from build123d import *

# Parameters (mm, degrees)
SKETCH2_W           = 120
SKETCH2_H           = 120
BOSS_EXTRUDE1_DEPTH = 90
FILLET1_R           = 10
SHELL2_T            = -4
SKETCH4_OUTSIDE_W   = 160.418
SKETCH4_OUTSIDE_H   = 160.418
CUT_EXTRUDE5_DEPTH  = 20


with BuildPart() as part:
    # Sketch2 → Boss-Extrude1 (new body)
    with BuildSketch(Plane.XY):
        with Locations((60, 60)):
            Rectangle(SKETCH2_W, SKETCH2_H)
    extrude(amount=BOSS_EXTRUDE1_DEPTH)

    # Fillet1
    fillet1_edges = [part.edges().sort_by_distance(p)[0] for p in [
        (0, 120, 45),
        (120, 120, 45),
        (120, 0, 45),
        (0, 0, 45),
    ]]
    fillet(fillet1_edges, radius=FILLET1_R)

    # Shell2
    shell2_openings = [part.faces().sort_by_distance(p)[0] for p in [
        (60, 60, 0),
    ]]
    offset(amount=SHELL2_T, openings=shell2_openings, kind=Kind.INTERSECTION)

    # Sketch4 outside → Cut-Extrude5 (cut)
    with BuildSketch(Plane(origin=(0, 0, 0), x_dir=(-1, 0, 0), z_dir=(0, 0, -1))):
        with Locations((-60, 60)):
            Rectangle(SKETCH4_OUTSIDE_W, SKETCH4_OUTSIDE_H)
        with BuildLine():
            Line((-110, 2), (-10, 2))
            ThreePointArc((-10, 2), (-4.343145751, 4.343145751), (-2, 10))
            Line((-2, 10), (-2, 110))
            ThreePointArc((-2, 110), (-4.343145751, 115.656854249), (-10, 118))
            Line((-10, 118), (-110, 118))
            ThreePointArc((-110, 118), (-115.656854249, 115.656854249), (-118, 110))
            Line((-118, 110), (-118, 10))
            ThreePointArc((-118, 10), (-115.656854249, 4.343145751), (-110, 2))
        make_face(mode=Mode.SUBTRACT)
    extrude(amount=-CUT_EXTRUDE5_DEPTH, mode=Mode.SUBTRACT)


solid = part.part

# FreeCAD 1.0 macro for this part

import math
import FreeCAD as App
import Part
import Sketcher
from FreeCAD import Vector
Q = App.Units.Quantity


def edges_at(feature, points):
    """Names of the edges that pass closest to the given points."""
    edges = feature.Shape.Edges
    near = lambda p: min(range(len(edges)), key=lambda i: edges[i].distToShape(Part.Vertex(*p))[0])
    return sorted({f"Edge{near(p) + 1}" for p in points})


def faces_at(feature, points):
    """Names of the faces that lie closest to the given points."""
    faces = feature.Shape.Faces
    near = lambda p: min(range(len(faces)), key=lambda i: faces[i].distToShape(Part.Vertex(*p))[0])
    return sorted({f"Face{near(p) + 1}" for p in points})

doc = App.newDocument("Part")
body = doc.addObject("PartDesign::Body", "Body")

sketch1 = body.newObject("Sketcher::SketchObject", "Sketch")
sketch1.AttachmentSupport = (doc.getObject("XY_Plane"), [""])
sketch1.MapMode = "FlatFace"
sketch1.addGeometry([
    Part.LineSegment(Vector(0, 120, 0), Vector(0, 0, 0)),
    Part.LineSegment(Vector(0, 0, 0), Vector(120, 0, 0)),
    Part.LineSegment(Vector(120, 0, 0), Vector(120, 120, 0)),
    Part.LineSegment(Vector(120, 120, 0), Vector(0, 120, 0)),
], False)
sketch1.addConstraint([
    Sketcher.Constraint("Coincident", 0, 2, 1, 1),
    Sketcher.Constraint("Coincident", 1, 2, 2, 1),
    Sketcher.Constraint("Coincident", 2, 2, 3, 1),
    Sketcher.Constraint("Coincident", 3, 2, 0, 1),
    Sketcher.Constraint("Vertical", 0),
    Sketcher.Constraint("Horizontal", 1),
    Sketcher.Constraint("Vertical", 2),
    Sketcher.Constraint("Horizontal", 3),
    Sketcher.Constraint("Coincident", 0, 2, -1, 1),
    Sketcher.Constraint("Equal", 3, 0),
    Sketcher.Constraint("DistanceX", 1, 1, 1, 2, Q("120 mm")),
])
pad1 = body.newObject("PartDesign::Pad", "Pad")
pad1.Profile = sketch1
pad1.Length = 90
doc.recompute()

fillet = body.newObject("PartDesign::Fillet", "Fillet")
fillet.Base = (pad1, edges_at(pad1, [
    (0, 120, 45),
    (120, 120, 45),
    (120, 0, 45),
    (0, 0, 45),
]))
fillet.Radius = 10
doc.recompute()

thickness = body.newObject("PartDesign::Thickness", "Thickness")
thickness.Base = (fillet, faces_at(fillet, [(60, 60, 0)]))
thickness.Value = 4
thickness.Reversed = True
thickness.Join = "Intersection"

sketch2 = body.newObject("Sketcher::SketchObject", "Sketch001")
sketch2.AttachmentSupport = (doc.getObject("XY_Plane"), [""])
sketch2.MapMode = "FlatFace"
sketch2.addGeometry([
    Part.LineSegment(Vector(140, 140, 0), Vector(140, -20, 0)),
    Part.LineSegment(Vector(140, -20, 0), Vector(-20, -20, 0)),
    Part.LineSegment(Vector(-20, -20, 0), Vector(-20, 140, 0)),
    Part.LineSegment(Vector(-20, 140, 0), Vector(140, 140, 0)),
    Part.LineSegment(Vector(10, 2, 0), Vector(110, 2, 0)),
    Part.ArcOfCircle(Part.Circle(Vector(110, 10, 0), Vector(0, 0, 1), 8), math.radians(-90), math.radians(0)),
    Part.LineSegment(Vector(118, 10, 0), Vector(118, 110, 0)),
    Part.ArcOfCircle(Part.Circle(Vector(110, 110, 0), Vector(0, 0, 1), 8), math.radians(0), math.radians(90)),
    Part.LineSegment(Vector(110, 118, 0), Vector(10, 118, 0)),
    Part.ArcOfCircle(Part.Circle(Vector(10, 110, 0), Vector(0, 0, 1), 8), math.radians(90), math.radians(180)),
    Part.LineSegment(Vector(2, 110, 0), Vector(2, 10, 0)),
    Part.ArcOfCircle(Part.Circle(Vector(10, 10, 0), Vector(0, 0, 1), 8), math.radians(-180), math.radians(-90)),
], False)
sketch2.addConstraint([
    Sketcher.Constraint("Coincident", 0, 2, 1, 1),
    Sketcher.Constraint("Coincident", 1, 2, 2, 1),
    Sketcher.Constraint("Coincident", 2, 2, 3, 1),
    Sketcher.Constraint("Coincident", 3, 2, 0, 1),
    Sketcher.Constraint("Tangent", 4, 2, 5, 1),
    Sketcher.Constraint("Tangent", 5, 2, 6, 1),
    Sketcher.Constraint("Tangent", 6, 2, 7, 1),
    Sketcher.Constraint("Tangent", 7, 2, 8, 1),
    Sketcher.Constraint("Tangent", 8, 2, 9, 1),
    Sketcher.Constraint("Tangent", 9, 2, 10, 1),
    Sketcher.Constraint("Tangent", 10, 2, 11, 1),
    Sketcher.Constraint("Tangent", 11, 2, 4, 1),
    Sketcher.Constraint("Vertical", 0),
    Sketcher.Constraint("Horizontal", 1),
    Sketcher.Constraint("Vertical", 2),
    Sketcher.Constraint("Horizontal", 3),
    Sketcher.Constraint("Horizontal", 4),
    Sketcher.Constraint("Vertical", 6),
    Sketcher.Constraint("Horizontal", 8),
    Sketcher.Constraint("Vertical", 10),
    Sketcher.Constraint("Equal", 5, 7),
    Sketcher.Constraint("Equal", 7, 9),
    Sketcher.Constraint("Equal", 9, 11),
    Sketcher.Constraint("Equal", 3, 0),
    Sketcher.Constraint("Equal", 8, 6),
    Sketcher.Constraint("Radius", 5, Q("8 mm")),
    Sketcher.Constraint("DistanceX", 4, 1, 4, 2, Q("100 mm")),
    Sketcher.Constraint("DistanceX", -1, 1, 5, 3, Q("110 mm")),
    Sketcher.Constraint("DistanceY", -1, 1, 5, 3, Q("10 mm")),
    Sketcher.Constraint("DistanceX", 1, 2, 1, 1, Q("160.418 mm")),
    Sketcher.Constraint("DistanceX", -1, 1, 0, 2, Q("140.209 mm")),
    Sketcher.Constraint("DistanceY", 0, 2, -1, 1, Q("20.209 mm")),
])
pocket1 = body.newObject("PartDesign::Pocket", "Pocket")
pocket1.Profile = sketch2
pocket1.Length = 20
pocket1.Reversed = True

doc.recompute()
